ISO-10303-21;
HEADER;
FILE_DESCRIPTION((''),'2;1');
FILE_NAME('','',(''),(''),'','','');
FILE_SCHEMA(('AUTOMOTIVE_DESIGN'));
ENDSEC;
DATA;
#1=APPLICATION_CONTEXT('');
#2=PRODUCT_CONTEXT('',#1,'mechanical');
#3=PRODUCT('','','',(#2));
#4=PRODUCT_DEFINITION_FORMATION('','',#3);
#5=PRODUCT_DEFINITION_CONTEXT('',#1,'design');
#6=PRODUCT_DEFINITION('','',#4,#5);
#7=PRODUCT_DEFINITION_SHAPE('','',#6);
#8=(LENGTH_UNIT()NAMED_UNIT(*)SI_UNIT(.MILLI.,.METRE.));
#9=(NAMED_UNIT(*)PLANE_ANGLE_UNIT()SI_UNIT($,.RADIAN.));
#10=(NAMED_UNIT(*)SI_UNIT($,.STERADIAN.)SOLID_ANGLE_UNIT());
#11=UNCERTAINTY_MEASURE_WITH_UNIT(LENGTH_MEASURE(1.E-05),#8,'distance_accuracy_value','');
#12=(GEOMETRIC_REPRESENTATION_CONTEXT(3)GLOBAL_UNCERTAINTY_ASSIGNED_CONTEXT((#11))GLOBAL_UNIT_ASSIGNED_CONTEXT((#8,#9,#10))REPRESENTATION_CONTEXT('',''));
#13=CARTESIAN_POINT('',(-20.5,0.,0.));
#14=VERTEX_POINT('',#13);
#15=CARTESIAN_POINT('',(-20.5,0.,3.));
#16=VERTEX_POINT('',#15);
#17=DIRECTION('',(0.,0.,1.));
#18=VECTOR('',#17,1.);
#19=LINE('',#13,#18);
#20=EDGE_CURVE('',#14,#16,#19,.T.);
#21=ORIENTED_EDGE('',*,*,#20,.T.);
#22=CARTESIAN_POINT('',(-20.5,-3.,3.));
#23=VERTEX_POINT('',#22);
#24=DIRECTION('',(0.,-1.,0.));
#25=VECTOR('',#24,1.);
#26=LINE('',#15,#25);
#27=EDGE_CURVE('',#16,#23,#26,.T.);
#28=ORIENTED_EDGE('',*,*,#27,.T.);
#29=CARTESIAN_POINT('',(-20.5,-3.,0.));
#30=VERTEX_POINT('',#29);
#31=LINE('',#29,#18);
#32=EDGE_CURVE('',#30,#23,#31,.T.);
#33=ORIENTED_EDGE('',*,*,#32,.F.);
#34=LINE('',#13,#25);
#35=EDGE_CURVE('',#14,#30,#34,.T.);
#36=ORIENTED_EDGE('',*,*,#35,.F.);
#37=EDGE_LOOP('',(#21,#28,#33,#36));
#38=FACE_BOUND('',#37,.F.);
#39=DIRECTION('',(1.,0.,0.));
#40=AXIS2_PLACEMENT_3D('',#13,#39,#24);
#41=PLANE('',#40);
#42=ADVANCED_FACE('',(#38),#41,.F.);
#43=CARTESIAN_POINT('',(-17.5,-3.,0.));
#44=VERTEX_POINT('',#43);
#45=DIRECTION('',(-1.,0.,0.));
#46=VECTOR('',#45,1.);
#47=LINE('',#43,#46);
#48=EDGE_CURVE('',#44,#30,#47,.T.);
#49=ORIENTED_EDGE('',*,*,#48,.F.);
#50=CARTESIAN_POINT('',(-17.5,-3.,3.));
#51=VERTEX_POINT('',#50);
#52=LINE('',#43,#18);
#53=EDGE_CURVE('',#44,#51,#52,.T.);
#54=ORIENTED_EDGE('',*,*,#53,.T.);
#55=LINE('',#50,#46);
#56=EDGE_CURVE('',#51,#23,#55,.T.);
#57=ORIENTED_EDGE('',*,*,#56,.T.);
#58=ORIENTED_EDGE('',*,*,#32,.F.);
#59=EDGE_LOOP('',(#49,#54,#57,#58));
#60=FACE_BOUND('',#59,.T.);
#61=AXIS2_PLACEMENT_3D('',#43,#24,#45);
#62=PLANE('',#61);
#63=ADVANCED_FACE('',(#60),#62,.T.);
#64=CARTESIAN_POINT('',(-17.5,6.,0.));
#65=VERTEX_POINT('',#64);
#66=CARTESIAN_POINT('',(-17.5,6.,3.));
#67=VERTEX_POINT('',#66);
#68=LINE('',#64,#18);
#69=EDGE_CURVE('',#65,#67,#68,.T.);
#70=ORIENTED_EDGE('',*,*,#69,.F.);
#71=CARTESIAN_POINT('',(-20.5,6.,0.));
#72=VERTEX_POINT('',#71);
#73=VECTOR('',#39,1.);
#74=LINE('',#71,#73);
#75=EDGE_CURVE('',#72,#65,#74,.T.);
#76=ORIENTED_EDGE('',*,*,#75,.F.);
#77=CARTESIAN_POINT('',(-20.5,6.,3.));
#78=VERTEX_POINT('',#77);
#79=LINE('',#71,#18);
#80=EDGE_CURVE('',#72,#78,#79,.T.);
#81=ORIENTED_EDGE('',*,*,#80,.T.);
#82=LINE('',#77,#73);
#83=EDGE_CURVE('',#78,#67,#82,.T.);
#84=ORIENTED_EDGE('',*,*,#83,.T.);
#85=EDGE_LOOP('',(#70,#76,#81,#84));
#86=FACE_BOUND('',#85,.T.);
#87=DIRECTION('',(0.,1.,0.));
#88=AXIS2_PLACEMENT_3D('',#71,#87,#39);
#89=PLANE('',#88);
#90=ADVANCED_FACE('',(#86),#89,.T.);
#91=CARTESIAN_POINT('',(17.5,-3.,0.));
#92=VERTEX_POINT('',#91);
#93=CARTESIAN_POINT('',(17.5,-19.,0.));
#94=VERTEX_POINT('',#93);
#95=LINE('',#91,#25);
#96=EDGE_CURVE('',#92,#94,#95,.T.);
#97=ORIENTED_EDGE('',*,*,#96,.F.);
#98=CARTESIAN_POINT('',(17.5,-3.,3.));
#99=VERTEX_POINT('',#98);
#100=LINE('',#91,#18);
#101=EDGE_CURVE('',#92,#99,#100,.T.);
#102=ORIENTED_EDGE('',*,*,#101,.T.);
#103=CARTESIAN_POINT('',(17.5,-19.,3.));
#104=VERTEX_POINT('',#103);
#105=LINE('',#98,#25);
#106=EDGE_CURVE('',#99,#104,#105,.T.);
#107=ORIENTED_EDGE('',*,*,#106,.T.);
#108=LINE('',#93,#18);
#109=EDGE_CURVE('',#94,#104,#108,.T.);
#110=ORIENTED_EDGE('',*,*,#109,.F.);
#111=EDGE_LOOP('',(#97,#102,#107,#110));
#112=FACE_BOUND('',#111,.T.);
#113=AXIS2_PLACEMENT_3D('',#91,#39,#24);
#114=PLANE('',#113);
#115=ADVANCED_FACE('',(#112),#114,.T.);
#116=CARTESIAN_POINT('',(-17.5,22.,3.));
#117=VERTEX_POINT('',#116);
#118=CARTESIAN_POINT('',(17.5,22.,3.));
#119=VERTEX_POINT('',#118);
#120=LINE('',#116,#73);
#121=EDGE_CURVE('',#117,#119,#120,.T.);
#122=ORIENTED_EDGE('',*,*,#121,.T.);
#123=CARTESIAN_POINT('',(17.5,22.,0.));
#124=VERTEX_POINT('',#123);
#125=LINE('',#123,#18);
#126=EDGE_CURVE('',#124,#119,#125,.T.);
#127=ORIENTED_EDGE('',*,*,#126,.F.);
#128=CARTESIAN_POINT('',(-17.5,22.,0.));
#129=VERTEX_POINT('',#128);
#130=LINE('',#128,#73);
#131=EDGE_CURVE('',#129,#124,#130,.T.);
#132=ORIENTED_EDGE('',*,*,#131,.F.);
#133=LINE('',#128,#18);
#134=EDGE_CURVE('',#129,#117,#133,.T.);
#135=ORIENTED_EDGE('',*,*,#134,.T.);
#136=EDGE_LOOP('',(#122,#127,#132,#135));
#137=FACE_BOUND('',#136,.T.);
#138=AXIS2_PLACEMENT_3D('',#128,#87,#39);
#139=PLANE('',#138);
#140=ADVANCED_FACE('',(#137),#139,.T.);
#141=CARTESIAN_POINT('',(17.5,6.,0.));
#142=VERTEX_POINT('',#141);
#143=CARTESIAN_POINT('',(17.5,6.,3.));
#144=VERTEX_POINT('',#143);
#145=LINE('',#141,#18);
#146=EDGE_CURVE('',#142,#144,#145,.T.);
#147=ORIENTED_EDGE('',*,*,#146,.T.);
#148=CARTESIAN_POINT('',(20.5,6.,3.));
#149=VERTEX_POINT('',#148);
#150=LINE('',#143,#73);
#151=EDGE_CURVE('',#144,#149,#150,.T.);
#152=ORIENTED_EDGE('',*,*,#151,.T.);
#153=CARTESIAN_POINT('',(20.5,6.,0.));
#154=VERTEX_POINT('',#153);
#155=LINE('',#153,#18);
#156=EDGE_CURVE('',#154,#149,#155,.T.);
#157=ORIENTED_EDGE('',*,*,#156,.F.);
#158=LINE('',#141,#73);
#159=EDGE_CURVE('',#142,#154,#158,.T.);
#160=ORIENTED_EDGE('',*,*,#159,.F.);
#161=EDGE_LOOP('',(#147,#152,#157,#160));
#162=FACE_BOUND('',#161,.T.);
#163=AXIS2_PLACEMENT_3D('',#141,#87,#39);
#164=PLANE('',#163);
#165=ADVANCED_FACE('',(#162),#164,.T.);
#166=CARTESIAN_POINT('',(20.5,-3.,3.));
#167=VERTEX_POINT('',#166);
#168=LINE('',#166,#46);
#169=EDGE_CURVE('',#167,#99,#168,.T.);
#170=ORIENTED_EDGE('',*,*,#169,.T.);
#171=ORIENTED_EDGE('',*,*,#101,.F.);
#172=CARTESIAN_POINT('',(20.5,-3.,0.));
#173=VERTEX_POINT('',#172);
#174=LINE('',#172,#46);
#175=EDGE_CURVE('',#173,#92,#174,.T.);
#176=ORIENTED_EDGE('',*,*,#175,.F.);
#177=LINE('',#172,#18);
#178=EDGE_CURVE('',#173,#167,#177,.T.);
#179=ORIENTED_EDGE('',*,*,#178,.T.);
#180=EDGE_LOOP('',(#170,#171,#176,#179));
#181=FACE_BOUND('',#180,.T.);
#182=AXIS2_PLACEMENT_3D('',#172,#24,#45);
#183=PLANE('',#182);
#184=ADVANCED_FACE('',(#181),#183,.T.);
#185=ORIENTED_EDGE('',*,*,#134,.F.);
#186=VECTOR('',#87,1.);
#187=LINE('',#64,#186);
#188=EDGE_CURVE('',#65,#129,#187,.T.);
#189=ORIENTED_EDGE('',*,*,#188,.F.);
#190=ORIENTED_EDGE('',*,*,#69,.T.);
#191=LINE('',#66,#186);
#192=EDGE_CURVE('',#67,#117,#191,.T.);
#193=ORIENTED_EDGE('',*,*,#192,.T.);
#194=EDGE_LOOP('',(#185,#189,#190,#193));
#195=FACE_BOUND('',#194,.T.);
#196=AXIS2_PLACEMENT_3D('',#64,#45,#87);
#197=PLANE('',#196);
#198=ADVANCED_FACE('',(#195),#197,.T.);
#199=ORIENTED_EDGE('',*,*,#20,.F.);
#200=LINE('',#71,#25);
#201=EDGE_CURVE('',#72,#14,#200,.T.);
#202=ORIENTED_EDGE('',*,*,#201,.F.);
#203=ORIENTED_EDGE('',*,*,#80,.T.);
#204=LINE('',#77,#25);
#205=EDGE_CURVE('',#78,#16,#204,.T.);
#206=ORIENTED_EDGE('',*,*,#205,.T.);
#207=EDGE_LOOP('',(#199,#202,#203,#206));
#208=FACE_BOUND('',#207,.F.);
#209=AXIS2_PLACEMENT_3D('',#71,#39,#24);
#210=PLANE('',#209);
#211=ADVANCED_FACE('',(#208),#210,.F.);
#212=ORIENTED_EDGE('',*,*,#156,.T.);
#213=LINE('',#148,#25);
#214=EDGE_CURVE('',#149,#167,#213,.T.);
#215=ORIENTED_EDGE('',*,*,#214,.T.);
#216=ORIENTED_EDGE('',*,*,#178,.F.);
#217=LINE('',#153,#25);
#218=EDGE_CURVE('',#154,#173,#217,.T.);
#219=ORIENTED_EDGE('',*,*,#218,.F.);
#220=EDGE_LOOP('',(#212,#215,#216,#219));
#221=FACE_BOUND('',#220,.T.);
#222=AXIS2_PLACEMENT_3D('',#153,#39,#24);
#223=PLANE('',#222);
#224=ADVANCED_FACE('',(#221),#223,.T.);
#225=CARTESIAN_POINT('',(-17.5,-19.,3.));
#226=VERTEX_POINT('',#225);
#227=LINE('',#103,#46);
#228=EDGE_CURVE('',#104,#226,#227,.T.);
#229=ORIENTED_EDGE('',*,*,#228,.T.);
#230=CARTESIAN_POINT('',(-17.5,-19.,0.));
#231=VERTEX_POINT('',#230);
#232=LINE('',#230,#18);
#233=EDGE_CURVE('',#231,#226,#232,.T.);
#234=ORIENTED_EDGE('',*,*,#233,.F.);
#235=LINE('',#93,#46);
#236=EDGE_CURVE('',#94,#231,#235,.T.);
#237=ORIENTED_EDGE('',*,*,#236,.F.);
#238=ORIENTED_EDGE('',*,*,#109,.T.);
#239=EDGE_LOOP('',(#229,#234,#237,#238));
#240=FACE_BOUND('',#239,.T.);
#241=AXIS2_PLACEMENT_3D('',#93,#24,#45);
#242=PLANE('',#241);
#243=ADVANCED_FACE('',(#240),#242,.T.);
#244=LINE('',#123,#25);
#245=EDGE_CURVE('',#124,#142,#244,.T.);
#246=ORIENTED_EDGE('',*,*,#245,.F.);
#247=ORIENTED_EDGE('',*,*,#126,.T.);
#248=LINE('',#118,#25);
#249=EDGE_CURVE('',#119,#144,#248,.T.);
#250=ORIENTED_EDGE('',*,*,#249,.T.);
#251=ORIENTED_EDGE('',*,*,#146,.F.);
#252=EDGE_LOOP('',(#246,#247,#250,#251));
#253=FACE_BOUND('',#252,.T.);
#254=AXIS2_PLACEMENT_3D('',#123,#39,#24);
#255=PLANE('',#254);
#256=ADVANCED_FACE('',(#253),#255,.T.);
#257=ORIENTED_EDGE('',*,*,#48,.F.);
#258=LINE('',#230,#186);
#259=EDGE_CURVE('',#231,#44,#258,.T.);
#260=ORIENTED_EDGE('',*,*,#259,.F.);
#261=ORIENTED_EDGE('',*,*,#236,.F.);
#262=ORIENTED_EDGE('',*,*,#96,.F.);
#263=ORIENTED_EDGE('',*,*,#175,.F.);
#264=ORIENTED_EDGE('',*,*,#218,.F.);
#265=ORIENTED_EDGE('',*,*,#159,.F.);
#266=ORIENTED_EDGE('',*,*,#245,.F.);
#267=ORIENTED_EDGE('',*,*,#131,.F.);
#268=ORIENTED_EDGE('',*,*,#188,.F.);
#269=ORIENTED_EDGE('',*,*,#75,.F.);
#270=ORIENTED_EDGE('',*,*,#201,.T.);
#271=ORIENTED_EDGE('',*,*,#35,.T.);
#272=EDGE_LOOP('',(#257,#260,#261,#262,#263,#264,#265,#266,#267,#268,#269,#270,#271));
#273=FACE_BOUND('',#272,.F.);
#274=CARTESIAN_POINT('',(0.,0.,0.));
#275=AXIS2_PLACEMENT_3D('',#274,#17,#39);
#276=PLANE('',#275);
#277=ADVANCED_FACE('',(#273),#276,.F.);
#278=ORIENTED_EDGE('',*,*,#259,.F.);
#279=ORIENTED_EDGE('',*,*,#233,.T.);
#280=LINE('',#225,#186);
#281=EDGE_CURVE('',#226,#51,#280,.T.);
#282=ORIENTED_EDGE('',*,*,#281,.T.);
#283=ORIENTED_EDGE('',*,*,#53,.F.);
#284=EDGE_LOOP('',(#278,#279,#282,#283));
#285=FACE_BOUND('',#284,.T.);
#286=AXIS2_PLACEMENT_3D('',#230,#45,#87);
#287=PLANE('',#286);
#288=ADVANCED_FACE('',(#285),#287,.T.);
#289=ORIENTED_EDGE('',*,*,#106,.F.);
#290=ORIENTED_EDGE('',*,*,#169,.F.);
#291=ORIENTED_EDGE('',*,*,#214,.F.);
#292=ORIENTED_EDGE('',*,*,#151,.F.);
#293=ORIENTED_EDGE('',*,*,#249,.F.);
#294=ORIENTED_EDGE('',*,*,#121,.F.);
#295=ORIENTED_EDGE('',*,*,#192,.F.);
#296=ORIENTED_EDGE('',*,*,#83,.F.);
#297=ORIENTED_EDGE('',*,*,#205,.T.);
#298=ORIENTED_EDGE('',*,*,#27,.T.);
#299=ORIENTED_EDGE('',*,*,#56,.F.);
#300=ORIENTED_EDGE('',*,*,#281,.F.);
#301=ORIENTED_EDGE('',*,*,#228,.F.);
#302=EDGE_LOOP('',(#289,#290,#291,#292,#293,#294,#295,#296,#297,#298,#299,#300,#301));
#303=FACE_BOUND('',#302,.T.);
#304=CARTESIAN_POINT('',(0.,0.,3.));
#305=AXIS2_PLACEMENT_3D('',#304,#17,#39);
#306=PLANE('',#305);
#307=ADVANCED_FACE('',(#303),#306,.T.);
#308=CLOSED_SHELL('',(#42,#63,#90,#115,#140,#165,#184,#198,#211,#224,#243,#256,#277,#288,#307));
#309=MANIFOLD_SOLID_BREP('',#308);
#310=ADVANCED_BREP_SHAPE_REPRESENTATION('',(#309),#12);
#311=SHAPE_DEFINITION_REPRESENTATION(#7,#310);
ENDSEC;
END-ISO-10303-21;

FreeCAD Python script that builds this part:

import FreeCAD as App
import Part
import Sketcher

doc = App.newDocument("Part")
body = doc.addObject("PartDesign::Body", "Body")

# Sketch on XY plane
sketch1 = body.newObject("Sketcher::SketchObject", "Sketch")
sketch1.AttachmentSupport = (doc.getObject("XY_Plane"), [""])
sketch1.MapMode = "FlatFace"
sketch1.addGeometry(Part.LineSegment(App.Vector(17.5, 6, 0), App.Vector(17.5, 22, 0)), False)
sketch1.addGeometry(Part.LineSegment(App.Vector(17.5, 22, 0), App.Vector(-17.5, 22, 0)), False)
sketch1.addGeometry(Part.LineSegment(App.Vector(-17.5, 22, 0), App.Vector(-17.5, 6, 0)), False)
sketch1.addGeometry(Part.LineSegment(App.Vector(-17.5, 6, 0), App.Vector(-20.5, 6, 0)), False)
sketch1.addGeometry(Part.LineSegment(App.Vector(-20.5, 6, 0), App.Vector(-20.5, -3, 0)), False)
sketch1.addGeometry(Part.LineSegment(App.Vector(-20.5, -3, 0), App.Vector(-17.5, -3, 0)), False)
sketch1.addGeometry(Part.LineSegment(App.Vector(-17.5, -3, 0), App.Vector(-17.5, -19, 0)), False)
sketch1.addGeometry(Part.LineSegment(App.Vector(-17.5, -19, 0), App.Vector(17.5, -19, 0)), False)
sketch1.addGeometry(Part.LineSegment(App.Vector(17.5, -19, 0), App.Vector(17.5, -3, 0)), False)
sketch1.addGeometry(Part.LineSegment(App.Vector(17.5, -3, 0), App.Vector(20.5, -3, 0)), False)
sketch1.addGeometry(Part.LineSegment(App.Vector(20.5, -3, 0), App.Vector(20.5, 6, 0)), False)
sketch1.addGeometry(Part.LineSegment(App.Vector(20.5, 6, 0), App.Vector(17.5, 6, 0)), False)
sketch1.addConstraint(Sketcher.Constraint("Coincident", 0, 2, 1, 1))
sketch1.addConstraint(Sketcher.Constraint("Coincident", 1, 2, 2, 1))
sketch1.addConstraint(Sketcher.Constraint("Coincident", 2, 2, 3, 1))
sketch1.addConstraint(Sketcher.Constraint("Coincident", 3, 2, 4, 1))
sketch1.addConstraint(Sketcher.Constraint("Coincident", 4, 2, 5, 1))
sketch1.addConstraint(Sketcher.Constraint("Coincident", 5, 2, 6, 1))
sketch1.addConstraint(Sketcher.Constraint("Coincident", 6, 2, 7, 1))
sketch1.addConstraint(Sketcher.Constraint("Coincident", 7, 2, 8, 1))
sketch1.addConstraint(Sketcher.Constraint("Coincident", 8, 2, 9, 1))
sketch1.addConstraint(Sketcher.Constraint("Coincident", 9, 2, 10, 1))
sketch1.addConstraint(Sketcher.Constraint("Coincident", 10, 2, 11, 1))
sketch1.addConstraint(Sketcher.Constraint("Coincident", 11, 2, 0, 1))
sketch1.addConstraint(Sketcher.Constraint("Vertical", 0))
sketch1.addConstraint(Sketcher.Constraint("Horizontal", 1))
sketch1.addConstraint(Sketcher.Constraint("Vertical", 2))
sketch1.addConstraint(Sketcher.Constraint("Horizontal", 3))
sketch1.addConstraint(Sketcher.Constraint("Vertical", 4))
sketch1.addConstraint(Sketcher.Constraint("Horizontal", 5))
sketch1.addConstraint(Sketcher.Constraint("Vertical", 6))
sketch1.addConstraint(Sketcher.Constraint("Horizontal", 7))
sketch1.addConstraint(Sketcher.Constraint("Vertical", 8))
sketch1.addConstraint(Sketcher.Constraint("Horizontal", 9))
sketch1.addConstraint(Sketcher.Constraint("Vertical", 10))
sketch1.addConstraint(Sketcher.Constraint("Horizontal", 11))
sketch1.addConstraint(Sketcher.Constraint("Symmetric", 5, 2, 8, 2, -2))
sketch1.addConstraint(Sketcher.Constraint("Symmetric", 3, 2, 10, 2, -2))
sketch1.addConstraint(Sketcher.Constraint("Vertical", 2, 2, 5, 2))
sketch1.addConstraint(Sketcher.Constraint("Vertical", 0, 2, 7, 2))
sketch1.addConstraint(Sketcher.Constraint("Equal", 2, 6))
sketch1.addConstraint(Sketcher.Constraint("DistanceX", 1, 2, 1, 1, 35.0))
sketch1.addConstraint(Sketcher.Constraint("DistanceX", 3, 2, 3, 1, 3.0))
sketch1.addConstraint(Sketcher.Constraint("DistanceY", 0, 1, 0, 2, 16.0))
sketch1.addConstraint(Sketcher.Constraint("DistanceY", 4, 2, 4, 1, 9.0))
sketch1.addConstraint(Sketcher.Constraint("DistanceY", -1, 1, 0, 2, 22.0))
pad1 = body.newObject("PartDesign::Pad", "Pad")
pad1.Profile = sketch1
pad1.Length = 3

doc.recompute()
